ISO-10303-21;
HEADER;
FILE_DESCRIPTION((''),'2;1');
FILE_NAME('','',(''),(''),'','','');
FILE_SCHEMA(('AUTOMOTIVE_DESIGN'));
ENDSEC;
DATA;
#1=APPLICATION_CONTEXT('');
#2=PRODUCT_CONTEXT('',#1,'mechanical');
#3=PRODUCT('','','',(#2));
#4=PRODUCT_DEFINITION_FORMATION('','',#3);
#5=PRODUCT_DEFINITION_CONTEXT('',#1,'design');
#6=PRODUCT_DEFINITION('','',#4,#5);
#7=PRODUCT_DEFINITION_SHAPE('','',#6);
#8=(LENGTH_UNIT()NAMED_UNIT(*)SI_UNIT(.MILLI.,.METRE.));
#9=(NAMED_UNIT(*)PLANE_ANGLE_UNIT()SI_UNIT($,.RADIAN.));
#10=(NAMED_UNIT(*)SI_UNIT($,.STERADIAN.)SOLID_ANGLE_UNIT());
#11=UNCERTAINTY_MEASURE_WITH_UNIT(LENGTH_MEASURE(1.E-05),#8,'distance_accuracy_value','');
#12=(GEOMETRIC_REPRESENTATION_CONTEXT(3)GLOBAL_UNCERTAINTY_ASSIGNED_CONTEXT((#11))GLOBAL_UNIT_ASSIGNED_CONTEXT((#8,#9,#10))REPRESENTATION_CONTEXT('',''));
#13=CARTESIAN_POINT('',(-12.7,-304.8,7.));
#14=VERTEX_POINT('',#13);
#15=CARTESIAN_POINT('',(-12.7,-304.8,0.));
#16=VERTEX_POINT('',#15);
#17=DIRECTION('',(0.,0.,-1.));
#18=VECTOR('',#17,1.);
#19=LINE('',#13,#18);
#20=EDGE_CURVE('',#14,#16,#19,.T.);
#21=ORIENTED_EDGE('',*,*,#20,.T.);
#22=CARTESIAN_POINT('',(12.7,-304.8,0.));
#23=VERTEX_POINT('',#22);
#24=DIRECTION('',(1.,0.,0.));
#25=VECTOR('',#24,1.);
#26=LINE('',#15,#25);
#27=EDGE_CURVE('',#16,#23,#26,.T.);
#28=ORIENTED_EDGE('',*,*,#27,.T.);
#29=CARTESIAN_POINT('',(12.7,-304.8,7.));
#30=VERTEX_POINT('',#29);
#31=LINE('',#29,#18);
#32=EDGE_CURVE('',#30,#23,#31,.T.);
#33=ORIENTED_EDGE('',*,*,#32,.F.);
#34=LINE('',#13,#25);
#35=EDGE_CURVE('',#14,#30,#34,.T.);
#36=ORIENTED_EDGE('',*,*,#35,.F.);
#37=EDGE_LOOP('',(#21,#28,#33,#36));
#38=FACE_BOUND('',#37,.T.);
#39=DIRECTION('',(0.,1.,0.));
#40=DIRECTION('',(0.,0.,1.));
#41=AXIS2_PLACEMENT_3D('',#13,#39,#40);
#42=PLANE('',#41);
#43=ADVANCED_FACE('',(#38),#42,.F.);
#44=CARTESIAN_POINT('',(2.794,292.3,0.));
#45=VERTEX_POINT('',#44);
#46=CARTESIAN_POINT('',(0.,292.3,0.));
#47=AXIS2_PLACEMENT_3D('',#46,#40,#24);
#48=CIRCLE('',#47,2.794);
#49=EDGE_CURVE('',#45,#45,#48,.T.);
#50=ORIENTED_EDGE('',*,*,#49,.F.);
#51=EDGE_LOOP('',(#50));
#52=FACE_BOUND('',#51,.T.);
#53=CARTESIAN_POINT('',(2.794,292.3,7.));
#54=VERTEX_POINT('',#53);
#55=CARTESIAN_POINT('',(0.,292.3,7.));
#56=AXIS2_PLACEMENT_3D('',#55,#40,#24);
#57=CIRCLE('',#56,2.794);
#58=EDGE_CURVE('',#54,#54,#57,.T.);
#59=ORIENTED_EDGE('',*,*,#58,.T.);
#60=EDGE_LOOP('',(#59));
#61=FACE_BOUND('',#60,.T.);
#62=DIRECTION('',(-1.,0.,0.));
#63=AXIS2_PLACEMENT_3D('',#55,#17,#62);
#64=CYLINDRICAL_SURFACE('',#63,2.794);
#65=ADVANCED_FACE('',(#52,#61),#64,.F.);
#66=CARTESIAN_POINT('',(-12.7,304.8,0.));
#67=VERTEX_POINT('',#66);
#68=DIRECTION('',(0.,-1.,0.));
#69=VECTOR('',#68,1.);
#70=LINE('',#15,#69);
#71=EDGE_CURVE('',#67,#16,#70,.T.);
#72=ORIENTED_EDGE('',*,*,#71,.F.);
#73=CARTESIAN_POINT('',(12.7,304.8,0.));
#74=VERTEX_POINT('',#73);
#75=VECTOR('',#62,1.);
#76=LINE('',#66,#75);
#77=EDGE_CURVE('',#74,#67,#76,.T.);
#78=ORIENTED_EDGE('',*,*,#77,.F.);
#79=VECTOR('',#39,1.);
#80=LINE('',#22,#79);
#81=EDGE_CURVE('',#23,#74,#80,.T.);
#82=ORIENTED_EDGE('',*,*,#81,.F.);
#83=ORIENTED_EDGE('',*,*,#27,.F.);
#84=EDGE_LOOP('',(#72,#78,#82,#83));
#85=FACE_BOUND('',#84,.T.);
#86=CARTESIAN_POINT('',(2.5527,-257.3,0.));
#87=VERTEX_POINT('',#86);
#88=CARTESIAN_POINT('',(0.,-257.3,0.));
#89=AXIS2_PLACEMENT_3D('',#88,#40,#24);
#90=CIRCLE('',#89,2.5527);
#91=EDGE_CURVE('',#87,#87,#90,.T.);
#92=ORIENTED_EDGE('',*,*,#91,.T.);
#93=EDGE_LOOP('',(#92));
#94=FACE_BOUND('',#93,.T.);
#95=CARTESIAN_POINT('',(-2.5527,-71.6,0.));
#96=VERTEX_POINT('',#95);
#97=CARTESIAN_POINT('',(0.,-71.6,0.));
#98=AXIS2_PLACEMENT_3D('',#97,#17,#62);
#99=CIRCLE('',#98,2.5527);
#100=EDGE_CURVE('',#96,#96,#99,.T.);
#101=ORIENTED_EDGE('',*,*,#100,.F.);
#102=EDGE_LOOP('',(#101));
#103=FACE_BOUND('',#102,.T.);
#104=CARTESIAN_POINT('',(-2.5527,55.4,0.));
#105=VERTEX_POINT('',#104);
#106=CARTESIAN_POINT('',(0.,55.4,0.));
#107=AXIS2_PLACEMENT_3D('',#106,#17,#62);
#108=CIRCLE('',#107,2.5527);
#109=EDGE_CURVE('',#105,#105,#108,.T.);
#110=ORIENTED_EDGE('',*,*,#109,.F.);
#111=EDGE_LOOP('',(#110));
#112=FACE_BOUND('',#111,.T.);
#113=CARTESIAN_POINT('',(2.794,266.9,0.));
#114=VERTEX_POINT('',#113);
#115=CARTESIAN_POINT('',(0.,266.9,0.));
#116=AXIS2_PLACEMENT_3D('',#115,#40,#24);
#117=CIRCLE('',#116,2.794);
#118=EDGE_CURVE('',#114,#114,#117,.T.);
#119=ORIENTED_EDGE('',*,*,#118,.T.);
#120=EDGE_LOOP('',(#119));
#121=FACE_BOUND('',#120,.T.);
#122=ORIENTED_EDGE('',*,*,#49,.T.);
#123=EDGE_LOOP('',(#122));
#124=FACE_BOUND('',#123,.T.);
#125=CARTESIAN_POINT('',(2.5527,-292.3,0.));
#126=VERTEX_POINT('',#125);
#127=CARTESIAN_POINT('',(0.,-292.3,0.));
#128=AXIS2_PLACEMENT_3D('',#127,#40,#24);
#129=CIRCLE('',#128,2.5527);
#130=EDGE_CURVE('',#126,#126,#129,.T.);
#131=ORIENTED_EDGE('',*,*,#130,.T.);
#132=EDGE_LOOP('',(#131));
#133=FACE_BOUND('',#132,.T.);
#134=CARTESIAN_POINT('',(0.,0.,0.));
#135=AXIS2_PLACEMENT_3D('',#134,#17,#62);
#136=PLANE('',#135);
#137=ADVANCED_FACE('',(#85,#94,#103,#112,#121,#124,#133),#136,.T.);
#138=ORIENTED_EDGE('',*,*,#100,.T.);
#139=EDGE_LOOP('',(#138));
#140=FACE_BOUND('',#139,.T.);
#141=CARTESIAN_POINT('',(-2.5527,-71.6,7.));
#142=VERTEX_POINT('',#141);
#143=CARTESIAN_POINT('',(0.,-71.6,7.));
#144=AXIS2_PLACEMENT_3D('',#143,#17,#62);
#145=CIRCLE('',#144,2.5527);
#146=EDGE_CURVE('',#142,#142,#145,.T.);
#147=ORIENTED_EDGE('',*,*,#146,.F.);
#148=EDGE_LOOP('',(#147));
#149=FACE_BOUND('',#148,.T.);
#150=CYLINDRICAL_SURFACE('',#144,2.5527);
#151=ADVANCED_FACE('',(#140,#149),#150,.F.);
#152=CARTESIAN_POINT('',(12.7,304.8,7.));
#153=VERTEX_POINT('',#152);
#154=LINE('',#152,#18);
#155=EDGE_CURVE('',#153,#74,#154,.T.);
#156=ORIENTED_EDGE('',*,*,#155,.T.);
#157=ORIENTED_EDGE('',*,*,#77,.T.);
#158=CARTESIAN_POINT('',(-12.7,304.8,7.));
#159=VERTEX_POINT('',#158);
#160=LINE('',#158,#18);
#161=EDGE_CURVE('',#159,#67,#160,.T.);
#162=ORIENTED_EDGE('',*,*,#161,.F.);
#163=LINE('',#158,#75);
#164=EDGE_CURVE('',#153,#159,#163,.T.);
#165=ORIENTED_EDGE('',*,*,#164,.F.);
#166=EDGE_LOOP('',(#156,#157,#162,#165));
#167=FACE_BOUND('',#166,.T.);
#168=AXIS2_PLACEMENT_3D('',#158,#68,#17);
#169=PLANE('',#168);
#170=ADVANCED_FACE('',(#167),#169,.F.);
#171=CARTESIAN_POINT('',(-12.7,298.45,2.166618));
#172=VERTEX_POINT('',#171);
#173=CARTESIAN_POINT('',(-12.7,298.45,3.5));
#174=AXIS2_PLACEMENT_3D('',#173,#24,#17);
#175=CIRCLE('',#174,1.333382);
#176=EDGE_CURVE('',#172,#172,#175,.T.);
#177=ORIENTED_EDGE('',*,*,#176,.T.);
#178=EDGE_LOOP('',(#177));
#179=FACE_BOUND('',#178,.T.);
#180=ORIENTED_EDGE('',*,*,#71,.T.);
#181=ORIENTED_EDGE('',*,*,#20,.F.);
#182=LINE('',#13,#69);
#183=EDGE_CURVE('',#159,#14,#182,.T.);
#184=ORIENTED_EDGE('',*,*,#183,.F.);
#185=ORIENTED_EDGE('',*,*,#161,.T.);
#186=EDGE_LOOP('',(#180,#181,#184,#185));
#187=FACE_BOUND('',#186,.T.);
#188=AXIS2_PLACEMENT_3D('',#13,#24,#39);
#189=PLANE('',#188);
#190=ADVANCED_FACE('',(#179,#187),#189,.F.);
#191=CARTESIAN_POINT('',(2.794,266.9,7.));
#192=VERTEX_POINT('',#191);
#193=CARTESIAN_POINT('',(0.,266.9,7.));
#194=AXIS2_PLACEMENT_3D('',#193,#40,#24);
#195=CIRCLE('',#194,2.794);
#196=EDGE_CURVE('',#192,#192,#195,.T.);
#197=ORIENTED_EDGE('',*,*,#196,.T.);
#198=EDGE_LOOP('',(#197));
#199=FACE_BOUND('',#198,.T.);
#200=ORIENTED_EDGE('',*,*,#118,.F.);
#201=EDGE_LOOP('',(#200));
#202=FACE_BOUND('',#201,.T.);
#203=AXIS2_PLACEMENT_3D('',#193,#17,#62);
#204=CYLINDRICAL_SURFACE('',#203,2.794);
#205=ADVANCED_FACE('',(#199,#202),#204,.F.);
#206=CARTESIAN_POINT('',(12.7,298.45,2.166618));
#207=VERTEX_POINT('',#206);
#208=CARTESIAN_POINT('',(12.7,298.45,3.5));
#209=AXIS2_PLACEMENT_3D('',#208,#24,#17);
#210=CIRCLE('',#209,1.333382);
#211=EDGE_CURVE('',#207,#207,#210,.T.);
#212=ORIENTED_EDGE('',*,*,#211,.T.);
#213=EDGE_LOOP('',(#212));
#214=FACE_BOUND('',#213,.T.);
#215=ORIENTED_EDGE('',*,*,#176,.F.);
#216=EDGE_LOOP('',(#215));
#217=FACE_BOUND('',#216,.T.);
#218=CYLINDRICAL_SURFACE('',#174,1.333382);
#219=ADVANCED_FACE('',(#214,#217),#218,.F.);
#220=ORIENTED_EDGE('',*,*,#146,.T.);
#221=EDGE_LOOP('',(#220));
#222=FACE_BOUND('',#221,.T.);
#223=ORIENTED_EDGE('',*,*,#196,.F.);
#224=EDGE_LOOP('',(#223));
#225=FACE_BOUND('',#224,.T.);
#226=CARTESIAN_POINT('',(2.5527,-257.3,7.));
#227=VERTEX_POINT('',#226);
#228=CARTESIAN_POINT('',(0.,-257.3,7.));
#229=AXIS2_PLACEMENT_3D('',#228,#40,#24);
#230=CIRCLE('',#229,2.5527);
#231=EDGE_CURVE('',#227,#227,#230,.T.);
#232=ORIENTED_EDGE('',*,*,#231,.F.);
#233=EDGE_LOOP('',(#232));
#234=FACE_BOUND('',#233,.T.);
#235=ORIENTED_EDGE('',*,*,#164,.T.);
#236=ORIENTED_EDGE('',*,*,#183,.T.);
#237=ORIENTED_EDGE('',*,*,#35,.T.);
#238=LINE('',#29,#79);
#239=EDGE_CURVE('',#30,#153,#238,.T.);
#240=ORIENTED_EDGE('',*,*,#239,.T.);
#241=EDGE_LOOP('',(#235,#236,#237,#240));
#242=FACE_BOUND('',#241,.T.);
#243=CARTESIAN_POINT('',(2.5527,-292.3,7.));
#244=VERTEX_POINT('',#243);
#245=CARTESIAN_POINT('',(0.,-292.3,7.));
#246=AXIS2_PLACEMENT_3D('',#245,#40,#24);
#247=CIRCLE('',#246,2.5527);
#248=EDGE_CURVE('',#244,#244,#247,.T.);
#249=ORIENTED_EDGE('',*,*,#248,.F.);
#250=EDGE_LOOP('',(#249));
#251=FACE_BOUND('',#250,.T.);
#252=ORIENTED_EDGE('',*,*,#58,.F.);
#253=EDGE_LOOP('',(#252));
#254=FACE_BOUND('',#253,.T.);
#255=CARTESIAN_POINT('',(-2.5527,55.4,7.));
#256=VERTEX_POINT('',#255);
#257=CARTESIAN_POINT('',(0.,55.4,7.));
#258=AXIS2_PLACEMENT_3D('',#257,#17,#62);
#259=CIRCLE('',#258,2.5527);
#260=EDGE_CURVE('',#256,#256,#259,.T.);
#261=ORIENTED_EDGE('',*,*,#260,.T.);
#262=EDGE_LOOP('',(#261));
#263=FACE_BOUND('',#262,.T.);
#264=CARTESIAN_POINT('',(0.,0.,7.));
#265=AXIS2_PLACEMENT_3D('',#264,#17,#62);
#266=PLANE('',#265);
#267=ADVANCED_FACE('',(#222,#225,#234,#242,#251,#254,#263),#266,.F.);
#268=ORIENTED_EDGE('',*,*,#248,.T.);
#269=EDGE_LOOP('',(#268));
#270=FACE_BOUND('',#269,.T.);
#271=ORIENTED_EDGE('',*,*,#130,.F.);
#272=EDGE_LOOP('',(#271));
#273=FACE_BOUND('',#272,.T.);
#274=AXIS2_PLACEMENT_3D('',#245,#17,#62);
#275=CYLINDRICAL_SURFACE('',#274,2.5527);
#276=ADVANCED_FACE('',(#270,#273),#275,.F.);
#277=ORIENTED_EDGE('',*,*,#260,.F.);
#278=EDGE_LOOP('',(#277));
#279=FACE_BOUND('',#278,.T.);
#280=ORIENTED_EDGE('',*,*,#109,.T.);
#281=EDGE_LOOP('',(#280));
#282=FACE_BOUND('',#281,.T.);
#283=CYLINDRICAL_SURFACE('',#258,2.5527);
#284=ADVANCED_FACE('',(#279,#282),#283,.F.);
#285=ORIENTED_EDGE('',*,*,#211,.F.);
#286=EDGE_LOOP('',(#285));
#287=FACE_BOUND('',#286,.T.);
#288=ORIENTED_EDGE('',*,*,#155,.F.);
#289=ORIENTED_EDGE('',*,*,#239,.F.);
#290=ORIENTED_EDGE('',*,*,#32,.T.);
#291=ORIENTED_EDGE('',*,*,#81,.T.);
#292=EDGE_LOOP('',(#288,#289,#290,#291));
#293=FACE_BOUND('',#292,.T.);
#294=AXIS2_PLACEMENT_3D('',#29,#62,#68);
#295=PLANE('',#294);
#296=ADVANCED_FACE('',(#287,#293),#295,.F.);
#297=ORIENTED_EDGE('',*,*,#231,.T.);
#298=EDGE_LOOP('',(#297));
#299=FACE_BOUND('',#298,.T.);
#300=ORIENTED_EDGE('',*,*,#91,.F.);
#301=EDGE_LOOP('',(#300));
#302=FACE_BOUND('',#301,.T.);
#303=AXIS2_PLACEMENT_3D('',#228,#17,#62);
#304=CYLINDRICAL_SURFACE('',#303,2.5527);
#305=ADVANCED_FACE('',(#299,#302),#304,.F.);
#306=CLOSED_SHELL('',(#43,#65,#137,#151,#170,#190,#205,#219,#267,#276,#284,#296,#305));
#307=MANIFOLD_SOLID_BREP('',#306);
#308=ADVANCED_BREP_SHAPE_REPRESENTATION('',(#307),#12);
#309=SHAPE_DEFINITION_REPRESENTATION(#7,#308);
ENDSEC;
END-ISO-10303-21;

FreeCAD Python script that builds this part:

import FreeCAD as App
import Part
import Sketcher

V = App.Vector
Q = App.Units.Quantity


def add_polygon(sketch, points):
    """Adds a closed chain of lines whose ends are joined by coincident constraints."""
    first, n = sketch.GeometryCount, len(points)
    for a, b in zip(points, points[1:] + points[:1]):
        sketch.addGeometry(Part.LineSegment(App.Vector(*a, 0), App.Vector(*b, 0)), False)
    for i in range(n):
        sketch.addConstraint(Sketcher.Constraint("Coincident", first + i, 2, first + (i + 1) % n, 1))

doc = App.newDocument("Part")
params = doc.addObject("Spreadsheet::Sheet", "Params")
for row, (alias, value) in enumerate([
    ("sketch1_diameter", "0.22 in"),
    ("sketch1_width", "1 in"),
    ("sketch1_height", "24 in"),
    ("sketch1_diameter2", "0.201 in"),
    ("pad1_length", "7 mm"),
    ("sketch3_diameter", "0.201 in"),
], start=1):
    params.set(f"A{row}", alias)
    params.set(f"B{row}", "=" + value)
    params.setAlias(f"B{row}", alias)

body = doc.addObject("PartDesign::Body", "Body")

# Sketch on XY plane
sketch1 = body.newObject("Sketcher::SketchObject", "Sketch")
sketch1.AttachmentSupport = (doc.getObject("XY_Plane"), [""])
sketch1.MapMode = "FlatFace"
add_polygon(sketch1, [(-12.7, 304.8), (-12.7, -304.8), (12.7, -304.8), (12.7, 304.8)])  # lines 0-3
sketch1.addGeometry(Part.Circle(V(0, -292.3, 0), V(0, 0, 1), 2.6), False)  # 4
sketch1.addGeometry(Part.Circle(V(0, -257.3, 0), V(0, 0, 1), 2.6), False)  # 5
sketch1.addGeometry(Part.Circle(V(0, 266.9, 0), V(0, 0, 1), 2.8), False)  # 6
sketch1.addGeometry(Part.Circle(V(0, 292.3, 0), V(0, 0, 1), 2.8), False)  # 7
sketch1.addConstraint([
    Sketcher.Constraint("Vertical", 0),
    Sketcher.Constraint("Horizontal", 1),
    Sketcher.Constraint("Vertical", 2),
    Sketcher.Constraint("Horizontal", 3),
    Sketcher.Constraint("Equal", 4, 5),
    Sketcher.Constraint("Equal", 6, 7),
    Sketcher.Constraint("Symmetric", 4, 3, 7, 3, -1, 1),
    Sketcher.Constraint("Symmetric", 0, 2, 2, 2, -1, 1),
    Sketcher.Constraint("PointOnObject", 4, 3, -2),
    Sketcher.Constraint("PointOnObject", 5, 3, -2),
    Sketcher.Constraint("PointOnObject", 6, 3, -2),
    Sketcher.Constraint("Diameter", 6, Q("0.22 in")),
    Sketcher.Constraint("DistanceX", 1, 1, 1, 2, Q("1 in")),
    Sketcher.Constraint("DistanceY", 0, 2, 0, 1, Q("24 in")),
    Sketcher.Constraint("Diameter", 4, Q("0.201 in")),
    Sketcher.Constraint("DistanceY", 6, 3, 7, 3, Q("1 in")),
    Sketcher.Constraint("DistanceY", 4, 3, -1, 1, 292.3),
    Sketcher.Constraint("DistanceY", 5, 3, -1, 1, 257.3),
])
sketch1.setExpression("Constraints[15]", "Params.sketch1_diameter")
sketch1.setExpression("Constraints[16]", "Params.sketch1_width")
sketch1.setExpression("Constraints[17]", "Params.sketch1_height")
sketch1.setExpression("Constraints[18]", "Params.sketch1_diameter2")
pad1 = body.newObject("PartDesign::Pad", "Pad")
pad1.Profile = sketch1
pad1.setExpression("Length", "Params.pad1_length")

# Sketch on YZ plane
sketch2 = body.newObject("Sketcher::SketchObject", "Sketch001")
sketch2.AttachmentSupport = (doc.getObject("YZ_Plane"), [""])
sketch2.MapMode = "FlatFace"
sketch2.AttachmentOffset = App.Placement(V(0, 0, 0.5 * 25.4), App.Rotation())
sketch2.addGeometry(Part.Circle(V(298.4, 3.5, 0), V(0, 0, 1), 1.3), False)
sketch2.addConstraint([
    Sketcher.Constraint("DistanceX", -1, 1, 0, 3, Q("11.75 in")),
    Sketcher.Constraint("Diameter", 0, 2.666763),
    Sketcher.Constraint("DistanceY", -1, 1, 0, 3, 3.5),
])
pocket1 = body.newObject("PartDesign::Pocket", "Pocket")
pocket1.Profile = sketch2
pocket1.Type = "ThroughAll"

# Sketch on XY plane
sketch3 = body.newObject("Sketcher::SketchObject", "Sketch002")
sketch3.AttachmentSupport = (doc.getObject("XY_Plane"), [""])
sketch3.MapMode = "FlatFace"
sketch3.addGeometry([
    Part.Circle(V(0, -71.6, 0), V(0, 0, 1), 2.6),
    Part.Circle(V(0, 55.4, 0), V(0, 0, 1), 2.6),
], False)
sketch3.addConstraint([
    Sketcher.Constraint("Equal", 0, 1),
    Sketcher.Constraint("PointOnObject", 0, 3, -2),
    Sketcher.Constraint("PointOnObject", 1, 3, -2),
    Sketcher.Constraint("Diameter", 0, Q("0.201 in")),
    Sketcher.Constraint("DistanceY", 0, 3, 1, 3, Q("5 in")),
    Sketcher.Constraint("DistanceY", 0, 3, -1, 1, 71.6),
])
sketch3.setExpression("Constraints[3]", "Params.sketch3_diameter")
pocket2 = body.newObject("PartDesign::Pocket", "Pocket001")
pocket2.Profile = sketch3
pocket2.Type = "ThroughAll"
pocket2.Reversed = True

doc.recompute()
